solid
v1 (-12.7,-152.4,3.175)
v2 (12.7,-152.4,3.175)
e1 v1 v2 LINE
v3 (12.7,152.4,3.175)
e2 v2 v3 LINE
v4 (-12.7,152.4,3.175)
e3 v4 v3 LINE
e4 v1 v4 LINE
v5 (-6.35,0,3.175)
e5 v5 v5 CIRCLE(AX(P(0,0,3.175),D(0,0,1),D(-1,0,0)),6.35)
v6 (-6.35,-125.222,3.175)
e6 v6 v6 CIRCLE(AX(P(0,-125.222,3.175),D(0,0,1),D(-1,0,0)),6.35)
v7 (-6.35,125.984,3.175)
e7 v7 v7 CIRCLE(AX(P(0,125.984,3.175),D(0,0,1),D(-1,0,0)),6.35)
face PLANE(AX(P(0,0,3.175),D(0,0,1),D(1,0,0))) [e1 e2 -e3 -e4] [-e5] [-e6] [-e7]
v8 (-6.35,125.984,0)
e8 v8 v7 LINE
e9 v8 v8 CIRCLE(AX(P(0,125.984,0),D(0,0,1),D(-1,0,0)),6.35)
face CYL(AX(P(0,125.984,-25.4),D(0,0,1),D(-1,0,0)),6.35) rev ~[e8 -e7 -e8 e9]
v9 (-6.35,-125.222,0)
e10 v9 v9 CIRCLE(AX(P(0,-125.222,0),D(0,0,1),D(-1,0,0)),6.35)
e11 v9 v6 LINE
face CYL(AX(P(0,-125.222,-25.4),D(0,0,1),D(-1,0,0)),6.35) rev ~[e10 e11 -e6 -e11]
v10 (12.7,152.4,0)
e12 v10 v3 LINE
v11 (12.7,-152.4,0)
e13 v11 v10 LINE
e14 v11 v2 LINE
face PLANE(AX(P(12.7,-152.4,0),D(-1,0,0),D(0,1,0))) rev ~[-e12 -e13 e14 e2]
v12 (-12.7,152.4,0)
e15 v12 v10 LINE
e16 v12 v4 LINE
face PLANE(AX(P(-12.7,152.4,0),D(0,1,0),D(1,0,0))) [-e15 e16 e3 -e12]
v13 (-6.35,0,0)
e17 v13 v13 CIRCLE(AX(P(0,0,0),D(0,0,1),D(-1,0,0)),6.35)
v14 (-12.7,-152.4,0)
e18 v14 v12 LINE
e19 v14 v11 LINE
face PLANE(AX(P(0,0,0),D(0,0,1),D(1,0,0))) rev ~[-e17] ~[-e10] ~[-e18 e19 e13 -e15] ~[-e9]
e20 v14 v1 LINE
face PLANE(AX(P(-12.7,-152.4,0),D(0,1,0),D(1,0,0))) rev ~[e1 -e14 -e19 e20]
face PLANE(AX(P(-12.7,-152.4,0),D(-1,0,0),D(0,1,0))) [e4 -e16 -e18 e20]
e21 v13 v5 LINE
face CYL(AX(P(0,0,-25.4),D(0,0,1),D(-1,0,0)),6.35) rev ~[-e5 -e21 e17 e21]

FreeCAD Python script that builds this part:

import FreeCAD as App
import Part
import Sketcher
Q = App.Units.Quantity


def add_polygon(sketch, points):
    """Adds a closed chain of lines whose ends are joined by coincident constraints."""
    first, n = sketch.GeometryCount, len(points)
    for a, b in zip(points, points[1:] + points[:1]):
        sketch.addGeometry(Part.LineSegment(App.Vector(*a, 0), App.Vector(*b, 0)), False)
    for i in range(n):
        sketch.addConstraint(Sketcher.Constraint("Coincident", first + i, 2, first + (i + 1) % n, 1))

doc = App.newDocument("Part")
body = doc.addObject("PartDesign::Body", "Body")

# Sketch on XY plane
sketch1 = body.newObject("Sketcher::SketchObject", "Sketch")
sketch1.AttachmentSupport = (doc.getObject("XY_Plane"), [""])
sketch1.MapMode = "FlatFace"
add_polygon(sketch1, [(-13, 152), (-13, -152), (13, -152), (13, 152)])  # lines 0-3
sketch1.addConstraint([
    Sketcher.Constraint("Vertical", 0),
    Sketcher.Constraint("Horizontal", 1),
    Sketcher.Constraint("Vertical", 2),
    Sketcher.Constraint("Horizontal", 3),
    Sketcher.Constraint("Symmetric", 0, 2, 2, 2, -1, 1),
    Sketcher.Constraint("DistanceX", 1, 1, 1, 2, Q("1 in")),
    Sketcher.Constraint("DistanceY", 0, 2, 0, 1, Q("12 in")),
])
pad1 = body.newObject("PartDesign::Pad", "Pad")
pad1.Profile = sketch1
pad1.Length = Q("0.125 in")

# Sketch on XY plane
sketch2 = body.newObject("Sketcher::SketchObject", "Sketch001")
sketch2.AttachmentSupport = (doc.getObject("XY_Plane"), [""])
sketch2.MapMode = "FlatFace"
sketch2.addGeometry([
    Part.Circle(App.Vector(0, 0, 0), App.Vector(0, 0, 1), 6),
    Part.Circle(App.Vector(0, -125, 0), App.Vector(0, 0, 1), 6),
    Part.Circle(App.Vector(0, 126, 0), App.Vector(0, 0, 1), 6),
], False)
sketch2.addConstraint([
    Sketcher.Constraint("Coincident", 0, 3, -1, 1),
    Sketcher.Constraint("Equal", 0, 1),
    Sketcher.Constraint("Equal", 1, 2),
    Sketcher.Constraint("PointOnObject", 1, 3, -2),
    Sketcher.Constraint("PointOnObject", 2, 3, -2),
    Sketcher.Constraint("Diameter", 0, Q("0.5 in")),
    Sketcher.Constraint("DistanceY", 1, 3, -1, 1, Q("4.93 in")),
    Sketcher.Constraint("DistanceY", -1, 1, 2, 3, Q("4.96 in")),
])
doc.recompute()
hole = body.newObject("PartDesign::Hole", "Hole")
hole.Profile = sketch2
hole.ThreadType = "None"
hole.Diameter = Q("0.5 in")
hole.DepthType = "Dimension"
hole.Depth = Q("1 in")
hole.DrillPoint = "Angled"
hole.DrillPointAngle = 118
hole.Reversed = True

doc.recompute()
